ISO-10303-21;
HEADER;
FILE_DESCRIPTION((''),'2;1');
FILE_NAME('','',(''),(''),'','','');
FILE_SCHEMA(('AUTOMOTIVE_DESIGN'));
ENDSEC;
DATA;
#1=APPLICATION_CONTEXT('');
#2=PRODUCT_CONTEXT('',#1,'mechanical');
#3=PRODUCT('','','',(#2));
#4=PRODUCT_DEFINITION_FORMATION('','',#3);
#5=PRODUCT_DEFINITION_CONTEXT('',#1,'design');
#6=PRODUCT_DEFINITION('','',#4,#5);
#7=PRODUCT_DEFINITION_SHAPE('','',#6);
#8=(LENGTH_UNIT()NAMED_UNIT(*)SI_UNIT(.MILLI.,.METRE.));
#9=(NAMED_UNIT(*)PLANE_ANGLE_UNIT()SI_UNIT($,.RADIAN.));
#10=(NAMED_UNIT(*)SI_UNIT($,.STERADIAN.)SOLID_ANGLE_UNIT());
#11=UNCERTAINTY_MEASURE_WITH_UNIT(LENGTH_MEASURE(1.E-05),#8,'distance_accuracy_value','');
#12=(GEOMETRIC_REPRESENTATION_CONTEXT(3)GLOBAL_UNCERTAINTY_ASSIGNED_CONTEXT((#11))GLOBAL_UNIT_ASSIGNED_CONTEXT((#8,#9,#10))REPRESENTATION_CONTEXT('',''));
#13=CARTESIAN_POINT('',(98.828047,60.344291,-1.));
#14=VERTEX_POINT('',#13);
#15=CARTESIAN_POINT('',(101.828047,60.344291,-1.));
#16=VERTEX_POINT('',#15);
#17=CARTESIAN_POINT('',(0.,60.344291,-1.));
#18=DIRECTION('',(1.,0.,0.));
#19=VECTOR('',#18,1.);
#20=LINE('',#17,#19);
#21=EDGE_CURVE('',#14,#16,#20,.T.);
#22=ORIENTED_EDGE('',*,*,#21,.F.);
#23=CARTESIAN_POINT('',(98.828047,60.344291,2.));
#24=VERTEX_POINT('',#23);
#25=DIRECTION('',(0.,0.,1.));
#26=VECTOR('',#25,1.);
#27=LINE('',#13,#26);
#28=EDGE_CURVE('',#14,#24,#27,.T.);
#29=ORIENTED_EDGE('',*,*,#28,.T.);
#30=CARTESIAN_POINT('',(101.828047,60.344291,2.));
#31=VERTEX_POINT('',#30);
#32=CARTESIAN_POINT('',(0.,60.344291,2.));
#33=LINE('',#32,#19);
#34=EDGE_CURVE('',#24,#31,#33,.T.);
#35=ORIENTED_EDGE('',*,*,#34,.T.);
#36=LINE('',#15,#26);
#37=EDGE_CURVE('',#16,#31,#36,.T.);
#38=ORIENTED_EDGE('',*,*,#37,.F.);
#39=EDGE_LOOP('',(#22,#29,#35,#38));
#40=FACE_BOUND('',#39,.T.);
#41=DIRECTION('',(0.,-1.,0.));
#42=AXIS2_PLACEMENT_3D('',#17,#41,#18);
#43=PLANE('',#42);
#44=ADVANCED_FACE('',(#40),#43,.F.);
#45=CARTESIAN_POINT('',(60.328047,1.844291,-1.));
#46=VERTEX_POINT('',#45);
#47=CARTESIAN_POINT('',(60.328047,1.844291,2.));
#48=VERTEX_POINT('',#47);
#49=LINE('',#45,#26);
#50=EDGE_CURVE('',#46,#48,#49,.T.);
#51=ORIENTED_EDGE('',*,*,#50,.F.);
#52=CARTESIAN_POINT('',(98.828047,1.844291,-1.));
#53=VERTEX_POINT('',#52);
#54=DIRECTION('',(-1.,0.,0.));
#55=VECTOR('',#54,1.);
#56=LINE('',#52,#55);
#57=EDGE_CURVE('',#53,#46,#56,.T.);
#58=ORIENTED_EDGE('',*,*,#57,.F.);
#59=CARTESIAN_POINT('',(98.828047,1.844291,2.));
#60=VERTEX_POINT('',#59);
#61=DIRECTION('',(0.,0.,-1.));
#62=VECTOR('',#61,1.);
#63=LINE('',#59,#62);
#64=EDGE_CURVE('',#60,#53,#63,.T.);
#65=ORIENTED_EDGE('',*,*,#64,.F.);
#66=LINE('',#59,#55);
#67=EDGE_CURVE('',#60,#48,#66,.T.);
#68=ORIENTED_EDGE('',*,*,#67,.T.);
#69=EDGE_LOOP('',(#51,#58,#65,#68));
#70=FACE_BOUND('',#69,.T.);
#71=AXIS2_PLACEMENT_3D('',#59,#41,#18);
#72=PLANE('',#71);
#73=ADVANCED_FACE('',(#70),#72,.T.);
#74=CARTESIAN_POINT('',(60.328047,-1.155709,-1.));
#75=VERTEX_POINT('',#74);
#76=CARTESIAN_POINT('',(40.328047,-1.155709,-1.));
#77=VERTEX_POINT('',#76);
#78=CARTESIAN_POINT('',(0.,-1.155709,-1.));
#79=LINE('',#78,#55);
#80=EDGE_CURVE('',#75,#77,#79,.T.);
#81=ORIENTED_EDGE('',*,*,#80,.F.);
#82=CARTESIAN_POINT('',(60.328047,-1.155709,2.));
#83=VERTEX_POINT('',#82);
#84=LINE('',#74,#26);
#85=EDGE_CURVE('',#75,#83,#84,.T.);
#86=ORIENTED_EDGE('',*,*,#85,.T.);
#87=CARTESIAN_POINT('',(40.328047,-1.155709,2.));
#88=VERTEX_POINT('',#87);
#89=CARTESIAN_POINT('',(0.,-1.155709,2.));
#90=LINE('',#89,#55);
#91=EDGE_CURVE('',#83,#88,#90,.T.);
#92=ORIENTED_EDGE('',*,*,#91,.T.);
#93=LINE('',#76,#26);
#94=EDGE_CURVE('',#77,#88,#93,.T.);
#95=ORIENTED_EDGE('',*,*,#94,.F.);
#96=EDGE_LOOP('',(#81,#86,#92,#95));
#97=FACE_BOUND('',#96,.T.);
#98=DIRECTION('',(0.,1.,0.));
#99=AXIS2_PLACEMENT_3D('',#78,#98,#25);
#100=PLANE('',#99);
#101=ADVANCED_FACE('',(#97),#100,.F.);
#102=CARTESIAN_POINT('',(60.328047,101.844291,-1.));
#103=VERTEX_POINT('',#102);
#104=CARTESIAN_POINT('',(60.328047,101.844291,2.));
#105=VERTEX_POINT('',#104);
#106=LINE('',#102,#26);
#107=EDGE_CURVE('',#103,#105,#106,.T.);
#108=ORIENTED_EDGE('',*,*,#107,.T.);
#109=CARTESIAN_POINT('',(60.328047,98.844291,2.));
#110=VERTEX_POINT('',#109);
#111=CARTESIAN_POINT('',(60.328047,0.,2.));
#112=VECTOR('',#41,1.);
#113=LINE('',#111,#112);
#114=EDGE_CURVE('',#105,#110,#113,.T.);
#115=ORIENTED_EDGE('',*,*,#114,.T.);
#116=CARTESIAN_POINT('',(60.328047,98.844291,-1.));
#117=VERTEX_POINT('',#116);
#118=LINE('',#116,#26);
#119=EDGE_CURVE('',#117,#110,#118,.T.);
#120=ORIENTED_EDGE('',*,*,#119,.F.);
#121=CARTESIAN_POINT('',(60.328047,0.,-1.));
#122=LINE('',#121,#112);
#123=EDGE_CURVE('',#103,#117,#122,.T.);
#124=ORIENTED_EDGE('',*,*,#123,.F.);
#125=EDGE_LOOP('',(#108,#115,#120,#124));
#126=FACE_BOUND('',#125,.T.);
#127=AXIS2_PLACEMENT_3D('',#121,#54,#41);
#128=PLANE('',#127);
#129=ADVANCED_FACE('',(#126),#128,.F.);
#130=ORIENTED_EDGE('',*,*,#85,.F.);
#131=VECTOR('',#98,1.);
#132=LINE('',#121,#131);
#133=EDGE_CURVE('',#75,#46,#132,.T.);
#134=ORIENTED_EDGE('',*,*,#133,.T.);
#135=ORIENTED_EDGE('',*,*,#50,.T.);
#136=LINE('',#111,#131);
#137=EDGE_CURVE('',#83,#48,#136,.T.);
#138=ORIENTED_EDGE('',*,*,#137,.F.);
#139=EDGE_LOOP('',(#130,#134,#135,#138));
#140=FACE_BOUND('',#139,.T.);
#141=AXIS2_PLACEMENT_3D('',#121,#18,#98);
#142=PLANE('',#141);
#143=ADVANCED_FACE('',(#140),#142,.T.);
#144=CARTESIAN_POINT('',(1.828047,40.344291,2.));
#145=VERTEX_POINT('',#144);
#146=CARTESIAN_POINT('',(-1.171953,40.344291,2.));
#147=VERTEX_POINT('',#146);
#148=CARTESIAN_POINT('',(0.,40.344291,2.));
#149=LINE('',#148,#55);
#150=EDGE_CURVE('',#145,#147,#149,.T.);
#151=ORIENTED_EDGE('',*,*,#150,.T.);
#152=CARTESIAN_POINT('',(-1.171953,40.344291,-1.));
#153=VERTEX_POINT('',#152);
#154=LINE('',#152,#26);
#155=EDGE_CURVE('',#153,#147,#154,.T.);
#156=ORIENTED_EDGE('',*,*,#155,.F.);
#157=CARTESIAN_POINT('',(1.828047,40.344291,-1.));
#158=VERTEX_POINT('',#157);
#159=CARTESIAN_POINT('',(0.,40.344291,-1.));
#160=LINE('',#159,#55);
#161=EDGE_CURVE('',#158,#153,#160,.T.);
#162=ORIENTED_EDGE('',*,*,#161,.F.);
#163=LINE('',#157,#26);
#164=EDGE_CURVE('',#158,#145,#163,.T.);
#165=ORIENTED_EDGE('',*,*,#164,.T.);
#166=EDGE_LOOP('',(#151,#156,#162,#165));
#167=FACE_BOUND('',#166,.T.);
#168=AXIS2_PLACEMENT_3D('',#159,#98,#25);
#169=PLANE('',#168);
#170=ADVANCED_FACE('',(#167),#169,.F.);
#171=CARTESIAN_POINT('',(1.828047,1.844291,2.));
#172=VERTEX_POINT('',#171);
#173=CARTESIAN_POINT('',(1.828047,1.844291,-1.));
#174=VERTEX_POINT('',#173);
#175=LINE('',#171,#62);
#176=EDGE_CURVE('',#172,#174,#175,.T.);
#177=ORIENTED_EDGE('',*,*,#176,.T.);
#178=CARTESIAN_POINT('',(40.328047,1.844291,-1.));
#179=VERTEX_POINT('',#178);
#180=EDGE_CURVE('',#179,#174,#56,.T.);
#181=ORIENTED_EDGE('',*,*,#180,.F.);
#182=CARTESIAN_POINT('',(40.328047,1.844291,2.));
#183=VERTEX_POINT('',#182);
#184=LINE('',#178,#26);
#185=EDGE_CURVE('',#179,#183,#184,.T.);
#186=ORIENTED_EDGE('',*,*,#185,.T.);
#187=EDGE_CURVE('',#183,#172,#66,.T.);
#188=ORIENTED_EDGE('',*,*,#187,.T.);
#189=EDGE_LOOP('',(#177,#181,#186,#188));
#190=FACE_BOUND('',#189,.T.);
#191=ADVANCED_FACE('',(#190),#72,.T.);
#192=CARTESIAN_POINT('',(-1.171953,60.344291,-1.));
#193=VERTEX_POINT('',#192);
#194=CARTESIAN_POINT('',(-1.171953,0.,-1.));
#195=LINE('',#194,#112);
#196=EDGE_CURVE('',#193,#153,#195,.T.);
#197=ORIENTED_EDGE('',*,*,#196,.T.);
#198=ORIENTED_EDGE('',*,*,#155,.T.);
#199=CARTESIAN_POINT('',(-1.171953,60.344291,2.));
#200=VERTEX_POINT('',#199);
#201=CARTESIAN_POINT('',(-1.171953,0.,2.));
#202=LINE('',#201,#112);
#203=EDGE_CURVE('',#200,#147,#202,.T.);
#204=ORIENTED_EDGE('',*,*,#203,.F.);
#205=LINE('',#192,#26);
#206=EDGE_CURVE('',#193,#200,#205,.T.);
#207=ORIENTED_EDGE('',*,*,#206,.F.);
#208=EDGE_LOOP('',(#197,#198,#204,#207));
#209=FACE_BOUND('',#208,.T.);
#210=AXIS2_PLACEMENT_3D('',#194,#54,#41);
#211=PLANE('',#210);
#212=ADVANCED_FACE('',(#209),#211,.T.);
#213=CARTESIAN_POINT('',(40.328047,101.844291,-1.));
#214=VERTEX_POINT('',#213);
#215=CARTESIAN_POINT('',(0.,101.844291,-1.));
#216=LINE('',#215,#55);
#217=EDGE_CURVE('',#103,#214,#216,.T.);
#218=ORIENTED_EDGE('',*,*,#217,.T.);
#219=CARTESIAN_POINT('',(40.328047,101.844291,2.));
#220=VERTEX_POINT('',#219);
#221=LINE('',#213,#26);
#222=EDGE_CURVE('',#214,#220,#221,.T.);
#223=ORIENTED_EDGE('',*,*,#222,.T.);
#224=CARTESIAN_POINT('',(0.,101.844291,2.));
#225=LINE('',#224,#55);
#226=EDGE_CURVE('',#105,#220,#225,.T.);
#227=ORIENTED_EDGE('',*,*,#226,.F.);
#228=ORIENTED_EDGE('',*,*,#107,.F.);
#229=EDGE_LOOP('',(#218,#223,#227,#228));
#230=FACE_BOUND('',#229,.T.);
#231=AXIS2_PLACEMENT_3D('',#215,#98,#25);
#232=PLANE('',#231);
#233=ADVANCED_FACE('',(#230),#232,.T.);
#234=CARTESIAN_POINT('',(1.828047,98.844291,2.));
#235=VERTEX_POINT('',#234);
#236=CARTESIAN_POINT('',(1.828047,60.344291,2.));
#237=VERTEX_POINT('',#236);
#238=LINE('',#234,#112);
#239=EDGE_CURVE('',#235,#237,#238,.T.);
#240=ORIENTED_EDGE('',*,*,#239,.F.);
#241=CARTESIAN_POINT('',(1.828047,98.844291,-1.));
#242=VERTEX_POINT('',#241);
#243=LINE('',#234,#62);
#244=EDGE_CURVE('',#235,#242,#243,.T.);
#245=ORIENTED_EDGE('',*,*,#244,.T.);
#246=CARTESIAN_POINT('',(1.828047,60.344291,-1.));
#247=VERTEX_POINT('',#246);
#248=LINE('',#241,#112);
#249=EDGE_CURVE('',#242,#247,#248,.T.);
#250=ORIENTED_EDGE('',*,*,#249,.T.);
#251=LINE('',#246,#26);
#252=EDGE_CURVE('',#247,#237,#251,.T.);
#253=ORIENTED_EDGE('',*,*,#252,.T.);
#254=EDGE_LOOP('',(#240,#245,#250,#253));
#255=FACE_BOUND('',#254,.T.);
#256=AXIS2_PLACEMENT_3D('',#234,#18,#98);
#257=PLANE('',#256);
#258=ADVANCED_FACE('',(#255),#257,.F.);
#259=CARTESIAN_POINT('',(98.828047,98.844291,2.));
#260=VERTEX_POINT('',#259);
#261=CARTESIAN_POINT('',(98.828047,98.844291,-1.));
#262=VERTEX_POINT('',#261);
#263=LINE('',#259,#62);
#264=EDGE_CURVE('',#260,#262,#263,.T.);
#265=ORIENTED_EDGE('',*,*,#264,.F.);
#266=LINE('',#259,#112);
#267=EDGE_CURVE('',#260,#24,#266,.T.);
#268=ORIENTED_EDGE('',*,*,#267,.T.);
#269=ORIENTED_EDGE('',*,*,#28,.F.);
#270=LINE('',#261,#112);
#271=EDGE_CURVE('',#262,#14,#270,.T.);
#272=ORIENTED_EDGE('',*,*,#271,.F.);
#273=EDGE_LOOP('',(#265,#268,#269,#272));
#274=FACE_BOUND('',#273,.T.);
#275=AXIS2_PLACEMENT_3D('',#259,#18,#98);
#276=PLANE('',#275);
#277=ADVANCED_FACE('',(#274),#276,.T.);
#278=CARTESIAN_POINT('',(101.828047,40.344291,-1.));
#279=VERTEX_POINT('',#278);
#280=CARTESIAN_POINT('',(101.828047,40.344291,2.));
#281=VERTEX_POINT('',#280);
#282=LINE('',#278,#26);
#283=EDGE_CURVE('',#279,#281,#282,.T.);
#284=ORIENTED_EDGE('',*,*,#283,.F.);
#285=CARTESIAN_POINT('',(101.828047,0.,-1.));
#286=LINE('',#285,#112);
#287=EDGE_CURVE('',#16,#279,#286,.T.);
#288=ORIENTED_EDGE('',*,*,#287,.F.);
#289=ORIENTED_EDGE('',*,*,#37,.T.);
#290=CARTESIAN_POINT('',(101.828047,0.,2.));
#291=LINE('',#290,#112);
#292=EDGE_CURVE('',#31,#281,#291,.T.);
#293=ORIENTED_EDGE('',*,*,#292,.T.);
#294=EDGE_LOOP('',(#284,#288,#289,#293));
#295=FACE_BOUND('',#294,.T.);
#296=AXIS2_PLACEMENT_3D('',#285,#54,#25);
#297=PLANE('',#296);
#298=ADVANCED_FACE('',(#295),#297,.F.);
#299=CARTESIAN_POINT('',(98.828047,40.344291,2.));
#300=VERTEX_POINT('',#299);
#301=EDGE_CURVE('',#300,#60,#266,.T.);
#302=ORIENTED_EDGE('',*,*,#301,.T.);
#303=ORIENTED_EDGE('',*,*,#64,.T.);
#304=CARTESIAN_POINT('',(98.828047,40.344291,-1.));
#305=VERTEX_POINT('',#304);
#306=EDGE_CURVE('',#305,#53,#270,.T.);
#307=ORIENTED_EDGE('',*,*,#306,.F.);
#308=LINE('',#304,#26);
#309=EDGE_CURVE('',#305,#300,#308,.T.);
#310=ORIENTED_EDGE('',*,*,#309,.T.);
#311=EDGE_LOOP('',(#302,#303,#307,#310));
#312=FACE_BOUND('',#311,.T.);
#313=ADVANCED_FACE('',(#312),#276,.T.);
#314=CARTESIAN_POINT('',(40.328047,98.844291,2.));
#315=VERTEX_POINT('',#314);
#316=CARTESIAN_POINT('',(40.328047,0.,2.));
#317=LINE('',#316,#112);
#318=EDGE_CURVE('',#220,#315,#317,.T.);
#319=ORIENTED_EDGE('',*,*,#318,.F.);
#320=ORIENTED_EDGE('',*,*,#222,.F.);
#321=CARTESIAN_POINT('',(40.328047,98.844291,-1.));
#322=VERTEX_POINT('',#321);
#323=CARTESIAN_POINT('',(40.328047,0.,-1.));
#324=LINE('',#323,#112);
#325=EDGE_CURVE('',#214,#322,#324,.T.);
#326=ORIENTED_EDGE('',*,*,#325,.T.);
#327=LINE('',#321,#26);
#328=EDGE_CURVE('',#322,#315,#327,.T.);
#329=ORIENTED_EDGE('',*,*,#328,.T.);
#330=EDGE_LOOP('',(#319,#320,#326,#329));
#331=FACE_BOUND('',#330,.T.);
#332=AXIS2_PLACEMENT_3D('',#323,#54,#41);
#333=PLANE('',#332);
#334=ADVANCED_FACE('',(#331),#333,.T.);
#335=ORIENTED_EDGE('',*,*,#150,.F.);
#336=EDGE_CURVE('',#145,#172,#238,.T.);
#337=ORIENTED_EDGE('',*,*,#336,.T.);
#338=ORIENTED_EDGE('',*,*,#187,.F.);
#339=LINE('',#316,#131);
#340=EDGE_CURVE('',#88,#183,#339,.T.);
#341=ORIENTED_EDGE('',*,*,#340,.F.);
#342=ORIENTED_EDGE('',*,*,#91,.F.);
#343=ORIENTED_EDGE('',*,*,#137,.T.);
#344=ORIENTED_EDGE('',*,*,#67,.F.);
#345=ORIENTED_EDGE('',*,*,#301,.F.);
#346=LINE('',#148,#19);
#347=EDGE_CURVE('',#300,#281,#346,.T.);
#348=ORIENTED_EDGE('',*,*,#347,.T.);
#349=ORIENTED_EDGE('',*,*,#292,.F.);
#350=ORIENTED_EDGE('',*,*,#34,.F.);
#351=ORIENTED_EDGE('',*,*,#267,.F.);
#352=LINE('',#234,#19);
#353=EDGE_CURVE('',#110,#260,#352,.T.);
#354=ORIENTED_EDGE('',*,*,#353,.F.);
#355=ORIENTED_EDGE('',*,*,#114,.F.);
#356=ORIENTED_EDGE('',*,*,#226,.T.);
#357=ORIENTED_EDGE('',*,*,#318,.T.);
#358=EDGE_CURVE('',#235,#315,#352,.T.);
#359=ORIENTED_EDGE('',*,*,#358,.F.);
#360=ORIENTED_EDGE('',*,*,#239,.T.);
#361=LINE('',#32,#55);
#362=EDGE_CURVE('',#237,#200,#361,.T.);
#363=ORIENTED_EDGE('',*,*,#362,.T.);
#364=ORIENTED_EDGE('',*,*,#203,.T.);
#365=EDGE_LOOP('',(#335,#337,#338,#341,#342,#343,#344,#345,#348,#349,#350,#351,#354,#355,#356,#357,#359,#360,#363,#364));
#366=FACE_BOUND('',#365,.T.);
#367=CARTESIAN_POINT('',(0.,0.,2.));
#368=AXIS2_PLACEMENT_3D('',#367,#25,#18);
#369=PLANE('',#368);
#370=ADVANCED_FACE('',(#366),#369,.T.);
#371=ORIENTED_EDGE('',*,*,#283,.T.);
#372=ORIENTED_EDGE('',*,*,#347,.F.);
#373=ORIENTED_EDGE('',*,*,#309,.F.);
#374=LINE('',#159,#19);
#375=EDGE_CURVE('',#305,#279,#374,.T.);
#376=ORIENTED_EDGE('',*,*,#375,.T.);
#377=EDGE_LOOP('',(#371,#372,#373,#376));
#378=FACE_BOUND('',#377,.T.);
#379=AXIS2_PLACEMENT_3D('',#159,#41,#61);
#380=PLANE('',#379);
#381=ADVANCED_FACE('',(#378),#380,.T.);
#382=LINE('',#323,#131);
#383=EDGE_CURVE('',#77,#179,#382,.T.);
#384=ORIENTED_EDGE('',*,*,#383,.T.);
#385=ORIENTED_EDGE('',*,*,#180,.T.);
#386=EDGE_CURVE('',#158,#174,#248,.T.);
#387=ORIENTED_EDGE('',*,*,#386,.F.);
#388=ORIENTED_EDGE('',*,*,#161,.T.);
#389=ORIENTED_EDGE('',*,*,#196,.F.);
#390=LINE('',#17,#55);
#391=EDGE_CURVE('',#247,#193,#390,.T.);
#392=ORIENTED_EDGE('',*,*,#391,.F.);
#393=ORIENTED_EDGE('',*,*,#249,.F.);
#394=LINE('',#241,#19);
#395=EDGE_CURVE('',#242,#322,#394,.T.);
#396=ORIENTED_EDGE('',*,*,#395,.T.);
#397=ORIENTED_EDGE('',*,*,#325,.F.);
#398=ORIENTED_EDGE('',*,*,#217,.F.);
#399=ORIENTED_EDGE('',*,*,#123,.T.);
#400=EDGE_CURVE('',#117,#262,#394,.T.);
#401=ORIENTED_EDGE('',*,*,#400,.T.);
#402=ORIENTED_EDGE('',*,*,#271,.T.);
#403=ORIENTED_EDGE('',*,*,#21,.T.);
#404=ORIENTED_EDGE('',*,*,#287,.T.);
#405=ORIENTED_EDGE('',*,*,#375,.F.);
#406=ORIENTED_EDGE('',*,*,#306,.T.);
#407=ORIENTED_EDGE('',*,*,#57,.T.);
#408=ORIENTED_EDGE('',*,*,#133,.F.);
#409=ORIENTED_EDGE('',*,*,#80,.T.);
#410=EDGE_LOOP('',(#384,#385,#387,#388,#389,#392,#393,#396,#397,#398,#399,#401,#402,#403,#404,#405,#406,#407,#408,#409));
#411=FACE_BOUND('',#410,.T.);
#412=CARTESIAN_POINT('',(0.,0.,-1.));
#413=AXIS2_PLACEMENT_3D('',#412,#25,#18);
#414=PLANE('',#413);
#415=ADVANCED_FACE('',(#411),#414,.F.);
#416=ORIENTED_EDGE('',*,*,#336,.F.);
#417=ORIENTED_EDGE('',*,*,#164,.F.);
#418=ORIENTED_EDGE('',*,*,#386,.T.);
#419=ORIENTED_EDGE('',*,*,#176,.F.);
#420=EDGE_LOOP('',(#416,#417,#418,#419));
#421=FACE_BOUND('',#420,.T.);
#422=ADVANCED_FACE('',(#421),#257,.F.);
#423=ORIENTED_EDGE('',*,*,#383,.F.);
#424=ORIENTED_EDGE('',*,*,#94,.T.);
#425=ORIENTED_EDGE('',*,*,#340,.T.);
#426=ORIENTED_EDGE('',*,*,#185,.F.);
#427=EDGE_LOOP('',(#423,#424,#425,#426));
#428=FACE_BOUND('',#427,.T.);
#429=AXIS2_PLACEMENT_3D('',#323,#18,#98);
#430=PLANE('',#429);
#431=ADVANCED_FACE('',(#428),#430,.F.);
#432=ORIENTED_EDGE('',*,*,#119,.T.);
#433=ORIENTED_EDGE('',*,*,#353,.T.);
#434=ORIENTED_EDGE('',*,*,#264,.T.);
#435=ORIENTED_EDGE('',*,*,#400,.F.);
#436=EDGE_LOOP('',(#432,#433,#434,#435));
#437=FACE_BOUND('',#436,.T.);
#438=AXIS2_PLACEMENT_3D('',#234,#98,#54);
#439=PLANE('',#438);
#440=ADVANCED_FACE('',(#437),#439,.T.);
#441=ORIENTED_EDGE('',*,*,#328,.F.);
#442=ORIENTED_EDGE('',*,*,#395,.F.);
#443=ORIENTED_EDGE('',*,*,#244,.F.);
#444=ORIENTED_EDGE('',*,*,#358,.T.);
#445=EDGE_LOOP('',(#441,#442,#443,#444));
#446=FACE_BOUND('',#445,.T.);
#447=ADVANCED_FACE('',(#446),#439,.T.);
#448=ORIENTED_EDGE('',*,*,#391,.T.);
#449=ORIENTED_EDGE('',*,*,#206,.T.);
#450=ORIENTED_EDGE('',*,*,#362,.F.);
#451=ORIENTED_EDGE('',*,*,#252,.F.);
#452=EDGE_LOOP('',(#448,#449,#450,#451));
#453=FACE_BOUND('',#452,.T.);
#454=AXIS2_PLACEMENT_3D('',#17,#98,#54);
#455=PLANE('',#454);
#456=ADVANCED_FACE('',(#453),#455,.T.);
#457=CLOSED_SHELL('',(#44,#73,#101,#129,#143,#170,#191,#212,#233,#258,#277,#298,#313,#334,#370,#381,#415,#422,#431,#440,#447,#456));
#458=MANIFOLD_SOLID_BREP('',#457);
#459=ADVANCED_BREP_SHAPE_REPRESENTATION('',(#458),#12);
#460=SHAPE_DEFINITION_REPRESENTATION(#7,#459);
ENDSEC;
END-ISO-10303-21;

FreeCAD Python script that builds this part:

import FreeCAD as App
import Part
import Sketcher

V = App.Vector
Q = App.Units.Quantity


def add_polygon(sketch, points):
    """Adds a closed chain of lines whose ends are joined by coincident constraints."""
    first, n = sketch.GeometryCount, len(points)
    for a, b in zip(points, points[1:] + points[:1]):
        sketch.addGeometry(Part.LineSegment(App.Vector(*a, 0), App.Vector(*b, 0)), False)
    for i in range(n):
        sketch.addConstraint(Sketcher.Constraint("Coincident", first + i, 2, first + (i + 1) % n, 1))

doc = App.newDocument("Part")
body = doc.addObject("PartDesign::Body", "Body")

# Sketch on XY plane
sketch1 = body.newObject("Sketcher::SketchObject", "Sketch")
sketch1.AttachmentSupport = (doc.getObject("XY_Plane"), [""])
sketch1.MapMode = "FlatFace"
add_polygon(sketch1, [(98.8, 60.3), (98.8, 98.8), (60.3, 98.8), (60.3, 101.8), (40.3, 101.8), (40.3, 98.8), (1.8, 98.8), (1.8, 60.3), (-1.2, 60.3), (-1.2, 40.3), (1.8, 40.3), (1.8, 1.8), (40.3, 1.8), (40.3, -1.2), (60.3, -1.2), (60.3, 1.8), (98.8, 1.8), (98.8, 40.3), (101.8, 40.3), (101.8, 60.3)])  # lines 0-19
sketch1.addConstraint(Sketcher.Constraint("Vertical", 0))
sketch1.addConstraint(Sketcher.Constraint("Horizontal", 1))
sketch1.addConstraint(Sketcher.Constraint("Vertical", 2))
sketch1.addConstraint(Sketcher.Constraint("Horizontal", 3))
sketch1.addConstraint(Sketcher.Constraint("Vertical", 4))
sketch1.addConstraint(Sketcher.Constraint("Horizontal", 5))
sketch1.addConstraint(Sketcher.Constraint("Vertical", 6))
sketch1.addConstraint(Sketcher.Constraint("Horizontal", 7))
sketch1.addConstraint(Sketcher.Constraint("Vertical", 8))
sketch1.addConstraint(Sketcher.Constraint("Horizontal", 9))
sketch1.addConstraint(Sketcher.Constraint("Vertical", 10))
sketch1.addConstraint(Sketcher.Constraint("Horizontal", 11))
sketch1.addConstraint(Sketcher.Constraint("Vertical", 12))
sketch1.addConstraint(Sketcher.Constraint("Horizontal", 13))
sketch1.addConstraint(Sketcher.Constraint("Vertical", 14))
sketch1.addConstraint(Sketcher.Constraint("Horizontal", 15))
sketch1.addConstraint(Sketcher.Constraint("Vertical", 16))
sketch1.addConstraint(Sketcher.Constraint("Horizontal", 17))
sketch1.addConstraint(Sketcher.Constraint("Vertical", 18))
sketch1.addConstraint(Sketcher.Constraint("Horizontal", 19))
sketch1.addConstraint(Sketcher.Constraint("Horizontal", 1, 2, 4, 2))
sketch1.addConstraint(Sketcher.Constraint("Horizontal", 11, 2, 14, 2))
sketch1.addConstraint(Sketcher.Constraint("Horizontal", 9, 2, 16, 2))
sketch1.addConstraint(Sketcher.Constraint("Horizontal", 7, 2, 18, 2))
sketch1.addConstraint(Sketcher.Constraint("Vertical", 6, 2, 9, 2))
sketch1.addConstraint(Sketcher.Constraint("Vertical", 4, 2, 11, 2))
sketch1.addConstraint(Sketcher.Constraint("Vertical", 2, 2, 13, 2))
sketch1.addConstraint(Sketcher.Constraint("Vertical", 0, 2, 15, 2))
sketch1.addConstraint(Sketcher.Constraint("Equal", 1, 5))
sketch1.addConstraint(Sketcher.Constraint("Equal", 9, 17))
sketch1.addConstraint(Sketcher.Constraint("Equal", 15, 0))
sketch1.addConstraint(Sketcher.Constraint("Equal", 19, 2))
sketch1.addConstraint(Sketcher.Constraint("Equal", 13, 8))
sketch1.addConstraint(Sketcher.Constraint("Equal", 6, 10))
sketch1.addConstraint(Sketcher.Constraint("Equal", 4, 12))
sketch1.addConstraint(Sketcher.Constraint("DistanceX", 3, 2, 3, 1, Q("20 mm")))
sketch1.addConstraint(Sketcher.Constraint("DistanceX", 7, 2, 7, 1, Q("3 mm")))
sketch1.addConstraint(Sketcher.Constraint("DistanceX", 1, 2, 1, 1, Q("38.5 mm")))
sketch1.addConstraint(Sketcher.Constraint("DistanceY", -1, 1, 0, 2, Q("98.844291 mm")))
sketch1.addConstraint(Sketcher.Constraint("DistanceX", -1, 1, 0, 2, Q("98.828047 mm")))
pad1 = body.newObject("PartDesign::Pad", "Pad")
pad1.Profile = sketch1
pad1.Type = "TwoLengths"
pad1.Length = 2
pad1.Length2 = 1

doc.recompute()
